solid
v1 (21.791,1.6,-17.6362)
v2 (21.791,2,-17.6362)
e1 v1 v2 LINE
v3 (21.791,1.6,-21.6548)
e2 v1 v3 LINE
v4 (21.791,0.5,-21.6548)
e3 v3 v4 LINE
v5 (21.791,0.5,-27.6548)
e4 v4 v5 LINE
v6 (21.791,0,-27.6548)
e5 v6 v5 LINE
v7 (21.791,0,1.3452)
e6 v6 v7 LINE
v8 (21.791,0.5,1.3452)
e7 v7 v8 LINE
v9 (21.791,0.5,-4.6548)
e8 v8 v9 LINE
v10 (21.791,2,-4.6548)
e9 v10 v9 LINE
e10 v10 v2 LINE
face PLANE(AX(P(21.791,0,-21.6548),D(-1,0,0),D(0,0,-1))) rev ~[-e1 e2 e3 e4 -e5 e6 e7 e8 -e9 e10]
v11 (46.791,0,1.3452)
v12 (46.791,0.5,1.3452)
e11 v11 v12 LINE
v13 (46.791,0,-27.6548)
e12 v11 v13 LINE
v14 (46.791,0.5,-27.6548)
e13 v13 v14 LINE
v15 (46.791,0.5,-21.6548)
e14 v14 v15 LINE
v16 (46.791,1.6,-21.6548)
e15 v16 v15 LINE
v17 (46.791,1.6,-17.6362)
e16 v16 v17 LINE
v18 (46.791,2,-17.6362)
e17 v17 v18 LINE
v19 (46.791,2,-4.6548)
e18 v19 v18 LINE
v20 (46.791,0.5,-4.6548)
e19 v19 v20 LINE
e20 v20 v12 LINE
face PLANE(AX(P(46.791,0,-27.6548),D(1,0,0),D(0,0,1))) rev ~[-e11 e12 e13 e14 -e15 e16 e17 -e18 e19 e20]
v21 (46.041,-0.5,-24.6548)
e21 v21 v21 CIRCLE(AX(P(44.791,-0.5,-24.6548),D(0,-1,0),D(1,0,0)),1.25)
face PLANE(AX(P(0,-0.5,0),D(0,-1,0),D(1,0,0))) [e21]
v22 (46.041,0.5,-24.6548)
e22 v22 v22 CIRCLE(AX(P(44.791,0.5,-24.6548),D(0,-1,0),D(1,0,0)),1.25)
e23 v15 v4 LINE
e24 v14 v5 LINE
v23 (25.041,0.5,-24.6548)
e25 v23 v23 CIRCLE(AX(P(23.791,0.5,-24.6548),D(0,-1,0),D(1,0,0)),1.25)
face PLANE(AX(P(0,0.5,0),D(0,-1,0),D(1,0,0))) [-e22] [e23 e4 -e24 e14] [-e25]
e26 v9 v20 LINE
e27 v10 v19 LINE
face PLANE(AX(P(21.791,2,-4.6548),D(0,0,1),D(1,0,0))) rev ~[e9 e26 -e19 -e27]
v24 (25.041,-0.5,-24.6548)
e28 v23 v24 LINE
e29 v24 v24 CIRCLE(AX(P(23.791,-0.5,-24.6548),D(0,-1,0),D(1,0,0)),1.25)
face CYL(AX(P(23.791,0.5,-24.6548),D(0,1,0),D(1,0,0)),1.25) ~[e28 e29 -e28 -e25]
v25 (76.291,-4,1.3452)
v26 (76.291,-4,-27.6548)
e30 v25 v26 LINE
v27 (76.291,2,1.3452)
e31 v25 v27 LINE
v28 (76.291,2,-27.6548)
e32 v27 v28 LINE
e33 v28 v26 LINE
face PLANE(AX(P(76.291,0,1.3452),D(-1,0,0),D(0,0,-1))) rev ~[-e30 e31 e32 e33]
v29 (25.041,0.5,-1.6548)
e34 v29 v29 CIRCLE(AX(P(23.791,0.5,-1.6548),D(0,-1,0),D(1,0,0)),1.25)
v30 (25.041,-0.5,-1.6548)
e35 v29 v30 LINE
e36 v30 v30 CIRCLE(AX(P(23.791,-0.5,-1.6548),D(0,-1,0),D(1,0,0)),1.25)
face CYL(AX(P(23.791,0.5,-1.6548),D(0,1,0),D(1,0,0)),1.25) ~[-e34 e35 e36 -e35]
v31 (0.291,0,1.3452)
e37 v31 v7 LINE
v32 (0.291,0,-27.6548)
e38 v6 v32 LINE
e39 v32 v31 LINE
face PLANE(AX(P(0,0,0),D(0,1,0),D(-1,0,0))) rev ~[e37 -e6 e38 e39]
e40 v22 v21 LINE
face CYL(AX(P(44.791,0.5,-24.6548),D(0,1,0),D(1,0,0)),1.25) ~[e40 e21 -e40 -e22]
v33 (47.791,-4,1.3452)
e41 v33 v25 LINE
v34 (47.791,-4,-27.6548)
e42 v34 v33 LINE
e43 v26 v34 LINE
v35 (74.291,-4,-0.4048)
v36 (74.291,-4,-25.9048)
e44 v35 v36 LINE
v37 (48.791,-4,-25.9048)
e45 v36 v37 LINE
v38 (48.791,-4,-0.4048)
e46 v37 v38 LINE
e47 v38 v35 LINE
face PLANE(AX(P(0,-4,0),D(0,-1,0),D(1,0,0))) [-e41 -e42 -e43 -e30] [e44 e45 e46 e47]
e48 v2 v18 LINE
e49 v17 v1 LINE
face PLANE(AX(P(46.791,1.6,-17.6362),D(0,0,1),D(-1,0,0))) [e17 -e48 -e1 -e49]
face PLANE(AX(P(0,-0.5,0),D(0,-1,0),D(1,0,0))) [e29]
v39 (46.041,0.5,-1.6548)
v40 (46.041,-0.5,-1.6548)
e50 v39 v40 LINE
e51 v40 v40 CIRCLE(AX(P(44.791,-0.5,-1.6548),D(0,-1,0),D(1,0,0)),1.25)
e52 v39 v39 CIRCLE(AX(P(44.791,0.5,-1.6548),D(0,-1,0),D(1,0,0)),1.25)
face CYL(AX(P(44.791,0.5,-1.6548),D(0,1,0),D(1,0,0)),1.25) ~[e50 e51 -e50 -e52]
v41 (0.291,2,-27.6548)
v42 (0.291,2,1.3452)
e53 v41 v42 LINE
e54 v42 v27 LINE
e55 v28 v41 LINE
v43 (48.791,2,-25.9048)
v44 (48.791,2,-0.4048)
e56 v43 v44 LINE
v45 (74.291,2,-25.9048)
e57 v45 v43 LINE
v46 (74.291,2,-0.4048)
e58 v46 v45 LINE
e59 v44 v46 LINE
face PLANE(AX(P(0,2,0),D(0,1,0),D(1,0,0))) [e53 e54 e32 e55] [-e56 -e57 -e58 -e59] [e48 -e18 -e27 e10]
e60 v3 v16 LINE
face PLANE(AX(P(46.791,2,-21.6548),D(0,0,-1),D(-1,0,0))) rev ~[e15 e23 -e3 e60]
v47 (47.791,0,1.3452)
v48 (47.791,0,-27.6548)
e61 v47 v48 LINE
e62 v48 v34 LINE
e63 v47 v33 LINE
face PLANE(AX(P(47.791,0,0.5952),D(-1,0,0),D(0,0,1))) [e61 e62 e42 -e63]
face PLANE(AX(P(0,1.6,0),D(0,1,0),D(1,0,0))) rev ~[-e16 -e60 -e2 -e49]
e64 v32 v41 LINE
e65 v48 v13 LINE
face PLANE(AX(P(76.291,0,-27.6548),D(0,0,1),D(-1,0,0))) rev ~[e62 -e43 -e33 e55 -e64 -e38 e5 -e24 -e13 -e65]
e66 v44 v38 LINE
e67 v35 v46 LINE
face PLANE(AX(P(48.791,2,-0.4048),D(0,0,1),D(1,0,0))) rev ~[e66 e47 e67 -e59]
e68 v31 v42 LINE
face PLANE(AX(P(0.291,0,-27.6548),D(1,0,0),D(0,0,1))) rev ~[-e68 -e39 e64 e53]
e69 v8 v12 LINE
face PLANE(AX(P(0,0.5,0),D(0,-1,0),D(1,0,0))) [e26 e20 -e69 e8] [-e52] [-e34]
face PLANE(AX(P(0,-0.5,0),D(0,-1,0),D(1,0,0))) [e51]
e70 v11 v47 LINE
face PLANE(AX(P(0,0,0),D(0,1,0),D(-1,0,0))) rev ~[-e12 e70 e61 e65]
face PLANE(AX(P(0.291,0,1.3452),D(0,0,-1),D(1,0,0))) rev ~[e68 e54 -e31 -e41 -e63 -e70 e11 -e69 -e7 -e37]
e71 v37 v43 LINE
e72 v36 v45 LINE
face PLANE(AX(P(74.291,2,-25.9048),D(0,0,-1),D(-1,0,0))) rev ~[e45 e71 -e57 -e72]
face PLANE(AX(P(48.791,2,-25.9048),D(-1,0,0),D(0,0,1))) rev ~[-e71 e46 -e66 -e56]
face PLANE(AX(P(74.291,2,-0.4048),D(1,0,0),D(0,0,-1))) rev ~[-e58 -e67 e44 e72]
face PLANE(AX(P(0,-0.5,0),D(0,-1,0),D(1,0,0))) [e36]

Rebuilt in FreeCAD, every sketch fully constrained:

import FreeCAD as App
import Part
import Sketcher
Q = App.Units.Quantity


def add_polygon(sketch, points):
    """Adds a closed chain of lines whose ends are joined by coincident constraints."""
    first, n = sketch.GeometryCount, len(points)
    for a, b in zip(points, points[1:] + points[:1]):
        sketch.addGeometry(Part.LineSegment(App.Vector(*a, 0), App.Vector(*b, 0)), False)
    for i in range(n):
        sketch.addConstraint(Sketcher.Constraint("Coincident", first + i, 2, first + (i + 1) % n, 1))

doc = App.newDocument("Part")
body = doc.addObject("PartDesign::Body", "Body")

# Sketch on XZ plane
sketch1 = doc.addObject("Sketcher::SketchObject", "Sketch")
body.addObject(sketch1)
sketch1.AttachmentSupport = (doc.XZ_Plane, [""])
sketch1.MapMode = "FlatFace"
add_polygon(sketch1, [(0.291, -27.6548), (0.291, 1.3452), (76.291, 1.3452), (76.291, -27.6548)])  # lines 0-3
sketch1.addConstraint(Sketcher.Constraint("Vertical", 0))
sketch1.addConstraint(Sketcher.Constraint("Horizontal", 1))
sketch1.addConstraint(Sketcher.Constraint("Vertical", 2))
sketch1.addConstraint(Sketcher.Constraint("Horizontal", 3))
sketch1.addConstraint(Sketcher.Constraint("DistanceX", 1, 1, 1, 2, Q("76 mm")))
sketch1.addConstraint(Sketcher.Constraint("DistanceY", 0, 1, 0, 2, Q("29 mm")))
sketch1.addConstraint(Sketcher.Constraint("DistanceX", -1, 1, 0, 2, Q("0.291 mm")))
sketch1.addConstraint(Sketcher.Constraint("DistanceY", -1, 1, 0, 2, Q("1.3452 mm")))
pad1 = doc.addObject("PartDesign::Pad", "Pad")
body.addObject(pad1)
pad1.Profile = sketch1
pad1.Length = 2
pad1.Reversed = True

# Sketch on XZ plane
sketch2 = doc.addObject("Sketcher::SketchObject", "Sketch001")
body.addObject(sketch2)
sketch2.AttachmentSupport = (doc.XZ_Plane, [""])
sketch2.MapMode = "FlatFace"
sketch2.AttachmentOffset = App.Placement(App.Vector(0, 0, -2), App.Rotation())
add_polygon(sketch2, [(21.791, -21.6548), (21.791, -4.6548), (46.791, -4.6548), (46.791, -21.6548)])  # lines 0-3
sketch2.addConstraint(Sketcher.Constraint("Vertical", 0))
sketch2.addConstraint(Sketcher.Constraint("Horizontal", 1))
sketch2.addConstraint(Sketcher.Constraint("Vertical", 2))
sketch2.addConstraint(Sketcher.Constraint("Horizontal", 3))
sketch2.addConstraint(Sketcher.Constraint("DistanceX", 1, 1, 1, 2, Q("25 mm")))
sketch2.addConstraint(Sketcher.Constraint("DistanceY", 0, 1, 0, 2, Q("17 mm")))
sketch2.addConstraint(Sketcher.Constraint("DistanceX", -1, 1, 0, 2, Q("21.791 mm")))
sketch2.addConstraint(Sketcher.Constraint("DistanceY", 0, 2, -1, 1, Q("4.6548 mm")))
pocket1 = doc.addObject("PartDesign::Pocket", "Pocket")
body.addObject(pocket1)
pocket1.Profile = sketch2
pocket1.Length = 2
pocket1.Reversed = True

# Sketch on XZ plane
sketch3 = doc.addObject("Sketcher::SketchObject", "Sketch002")
body.addObject(sketch3)
sketch3.AttachmentSupport = (doc.XZ_Plane, [""])
sketch3.MapMode = "FlatFace"
sketch3.AttachmentOffset = App.Placement(App.Vector(0, 0, -2), App.Rotation())
add_polygon(sketch3, [(48.791, -25.9048), (48.791, -0.4048), (74.291, -0.4048), (74.291, -25.9048)])  # lines 0-3
sketch3.addConstraint(Sketcher.Constraint("Vertical", 0))
sketch3.addConstraint(Sketcher.Constraint("Horizontal", 1))
sketch3.addConstraint(Sketcher.Constraint("Vertical", 2))
sketch3.addConstraint(Sketcher.Constraint("Horizontal", 3))
sketch3.addConstraint(Sketcher.Constraint("Equal", 3, 0))
sketch3.addConstraint(Sketcher.Constraint("DistanceX", 1, 1, 1, 2, Q("25.5 mm")))
sketch3.addConstraint(Sketcher.Constraint("DistanceX", -1, 1, 0, 2, Q("48.791 mm")))
sketch3.addConstraint(Sketcher.Constraint("DistanceY", 0, 2, -1, 1, Q("0.4048 mm")))
pocket2 = doc.addObject("PartDesign::Pocket", "Pocket001")
body.addObject(pocket2)
pocket2.Profile = sketch3
pocket2.Length = 2
pocket2.Reversed = True

# Sketch on XZ plane
sketch4 = doc.addObject("Sketcher::SketchObject", "Sketch003")
body.addObject(sketch4)
sketch4.AttachmentSupport = (doc.XZ_Plane, [""])
sketch4.MapMode = "FlatFace"
add_polygon(sketch4, [(46.791, -27.6548), (46.791, -21.6548), (21.791, -21.6548), (21.791, -27.6548)])  # lines 0-3
add_polygon(sketch4, [(21.791, -4.6548), (46.791, -4.6548), (46.791, 1.3452), (21.791, 1.3452)])  # lines 4-7
sketch4.addConstraint(Sketcher.Constraint("Vertical", 0))
sketch4.addConstraint(Sketcher.Constraint("Horizontal", 1))
sketch4.addConstraint(Sketcher.Constraint("Vertical", 2))
sketch4.addConstraint(Sketcher.Constraint("Horizontal", 3))
sketch4.addConstraint(Sketcher.Constraint("Horizontal", 4))
sketch4.addConstraint(Sketcher.Constraint("Vertical", 5))
sketch4.addConstraint(Sketcher.Constraint("Horizontal", 6))
sketch4.addConstraint(Sketcher.Constraint("Vertical", 7))
sketch4.addConstraint(Sketcher.Constraint("Vertical", 3, 2, 4, 2))
sketch4.addConstraint(Sketcher.Constraint("Vertical", 2, 2, 6, 2))
sketch4.addConstraint(Sketcher.Constraint("Equal", 2, 5))
sketch4.addConstraint(Sketcher.Constraint("DistanceX", 1, 2, 1, 1, Q("25 mm")))
sketch4.addConstraint(Sketcher.Constraint("DistanceY", 0, 1, 0, 2, Q("6 mm")))
sketch4.addConstraint(Sketcher.Constraint("DistanceY", 0, 2, 4, 2, Q("17 mm")))
sketch4.addConstraint(Sketcher.Constraint("DistanceX", -1, 1, 0, 2, Q("46.791 mm")))
sketch4.addConstraint(Sketcher.Constraint("DistanceY", 0, 2, -1, 1, Q("21.6548 mm")))
pocket3 = doc.addObject("PartDesign::Pocket", "Pocket002")
body.addObject(pocket3)
pocket3.Profile = sketch4
pocket3.Length = 0.5

# Sketch on XZ plane
sketch5 = doc.addObject("Sketcher::SketchObject", "Sketch004")
body.addObject(sketch5)
sketch5.AttachmentSupport = (doc.XZ_Plane, [""])
sketch5.MapMode = "FlatFace"
sketch5.AttachmentOffset = App.Placement(App.Vector(0, 0, -2), App.Rotation())
add_polygon(sketch5, [(46.791, -21.6548), (21.791, -21.6548), (21.791, -15.6362), (46.791, -15.6362)])  # lines 0-3
sketch5.addConstraint(Sketcher.Constraint("Horizontal", 0))
sketch5.addConstraint(Sketcher.Constraint("Vertical", 1))
sketch5.addConstraint(Sketcher.Constraint("Horizontal", 2))
sketch5.addConstraint(Sketcher.Constraint("Vertical", 3))
sketch5.addConstraint(Sketcher.Constraint("DistanceX", 0, 2, 0, 1, Q("25 mm")))
sketch5.addConstraint(Sketcher.Constraint("DistanceY", 1, 1, 1, 2, Q("6.0186 mm")))
sketch5.addConstraint(Sketcher.Constraint("DistanceX", -1, 1, 0, 2, Q("21.791 mm")))
sketch5.addConstraint(Sketcher.Constraint("DistanceY", 0, 2, -1, 1, Q("21.6548 mm")))
pad2 = doc.addObject("PartDesign::Pad", "Pad001")
body.addObject(pad2)
pad2.Profile = sketch5
pad2.Length = 0.4

# Sketch on XZ plane
sketch6 = doc.addObject("Sketcher::SketchObject", "Sketch005")
body.addObject(sketch6)
sketch6.AttachmentSupport = (doc.XZ_Plane, [""])
sketch6.MapMode = "FlatFace"
add_polygon(sketch6, [(76.291, 1.3452), (47.791, 1.3452), (47.791, -27.6548), (76.291, -27.6548)])  # lines 0-3
add_polygon(sketch6, [(48.791, -0.4048), (74.291, -0.4048), (74.291, -25.9048), (48.791, -25.9048)])  # lines 4-7
sketch6.addConstraint(Sketcher.Constraint("Horizontal", 0))
sketch6.addConstraint(Sketcher.Constraint("Vertical", 1))
sketch6.addConstraint(Sketcher.Constraint("Horizontal", 2))
sketch6.addConstraint(Sketcher.Constraint("Vertical", 3))
sketch6.addConstraint(Sketcher.Constraint("Horizontal", 4))
sketch6.addConstraint(Sketcher.Constraint("Vertical", 5))
sketch6.addConstraint(Sketcher.Constraint("Horizontal", 6))
sketch6.addConstraint(Sketcher.Constraint("Vertical", 7))
sketch6.addConstraint(Sketcher.Constraint("Equal", 6, 5))
sketch6.addConstraint(Sketcher.Constraint("DistanceX", 1, 2, 6, 2, Q("1 mm")))
sketch6.addConstraint(Sketcher.Constraint("DistanceY", 1, 2, 1, 1, Q("29 mm")))
sketch6.addConstraint(Sketcher.Constraint("DistanceX", 0, 2, 0, 1, Q("28.5 mm")))
sketch6.addConstraint(Sketcher.Constraint("DistanceX", 4, 1, 4, 2, Q("25.5 mm")))
sketch6.addConstraint(Sketcher.Constraint("DistanceY", 4, 2, 3, 2, Q("1.75 mm")))
sketch6.addConstraint(Sketcher.Constraint("DistanceX", -1, 1, 0, 2, Q("47.791 mm")))
sketch6.addConstraint(Sketcher.Constraint("DistanceY", -1, 1, 0, 2, Q("1.3452 mm")))
pad3 = doc.addObject("PartDesign::Pad", "Pad002")
body.addObject(pad3)
pad3.Profile = sketch6
pad3.Length = 4

# Sketch on XZ plane
sketch7 = doc.addObject("Sketcher::SketchObject", "Sketch006")
body.addObject(sketch7)
sketch7.AttachmentSupport = (doc.XZ_Plane, [""])
sketch7.MapMode = "FlatFace"
sketch7.AttachmentOffset = App.Placement(App.Vector(0, 0, -0.5), App.Rotation())
sketch7.addGeometry(Part.Circle(App.Vector(44.791, -1.6548, 0), App.Vector(0, 0, 1), 1.25), False)
sketch7.addGeometry(Part.Circle(App.Vector(23.791, -1.6548, 0), App.Vector(0, 0, 1), 1.25), False)
sketch7.addGeometry(Part.Circle(App.Vector(44.791, -24.6548, 0), App.Vector(0, 0, 1), 1.25), False)
sketch7.addGeometry(Part.Circle(App.Vector(23.791, -24.6548, 0), App.Vector(0, 0, 1), 1.25), False)
sketch7.addConstraint(Sketcher.Constraint("Equal", 0, 1))
sketch7.addConstraint(Sketcher.Constraint("Equal", 1, 2))
sketch7.addConstraint(Sketcher.Constraint("Equal", 2, 3))
sketch7.addConstraint(Sketcher.Constraint("Horizontal", 0, 3, 1, 3))
sketch7.addConstraint(Sketcher.Constraint("Horizontal", 2, 3, 3, 3))
sketch7.addConstraint(Sketcher.Constraint("Vertical", 0, 3, 2, 3))
sketch7.addConstraint(Sketcher.Constraint("Vertical", 1, 3, 3, 3))
sketch7.addConstraint(Sketcher.Constraint("Diameter", 0, Q("2.5 mm")))
sketch7.addConstraint(Sketcher.Constraint("DistanceX", 1, 3, 0, 3, Q("21 mm")))
sketch7.addConstraint(Sketcher.Constraint("DistanceY", 2, 3, 0, 3, Q("23 mm")))
sketch7.addConstraint(Sketcher.Constraint("DistanceX", -1, 1, 0, 3, Q("44.791 mm")))
sketch7.addConstraint(Sketcher.Constraint("DistanceY", 0, 3, -1, 1, Q("1.6548 mm")))
pad4 = doc.addObject("PartDesign::Pad", "Pad003")
body.addObject(pad4)
pad4.Profile = sketch7
pad4.Length = 1

# Sketch on XZ plane
sketch8 = doc.addObject("Sketcher::SketchObject", "Sketch007")
body.addObject(sketch8)
sketch8.AttachmentSupport = (doc.XZ_Plane, [""])
sketch8.MapMode = "FlatFace"
sketch8.AttachmentOffset = App.Placement(App.Vector(0, 0, -1.6), App.Rotation())
add_polygon(sketch8, [(46.791, -17.6362), (46.791, -15.6362), (21.791, -15.6362), (21.791, -17.6362)])  # lines 0-3
sketch8.addConstraint(Sketcher.Constraint("Vertical", 0))
sketch8.addConstraint(Sketcher.Constraint("Horizontal", 1))
sketch8.addConstraint(Sketcher.Constraint("Vertical", 2))
sketch8.addConstraint(Sketcher.Constraint("Horizontal", 3))
sketch8.addConstraint(Sketcher.Constraint("DistanceY", 0, 1, 0, 2, Q("2 mm")))
sketch8.addConstraint(Sketcher.Constraint("DistanceX", 1, 2, 1, 1, Q("25 mm")))
sketch8.addConstraint(Sketcher.Constraint("DistanceX", -1, 1, 0, 2, Q("46.791 mm")))
sketch8.addConstraint(Sketcher.Constraint("DistanceY", 0, 2, -1, 1, Q("15.6362 mm")))
pocket4 = doc.addObject("PartDesign::Pocket", "Pocket003")
body.addObject(pocket4)
pocket4.Profile = sketch8
pocket4.Length = 1

doc.recompute()
